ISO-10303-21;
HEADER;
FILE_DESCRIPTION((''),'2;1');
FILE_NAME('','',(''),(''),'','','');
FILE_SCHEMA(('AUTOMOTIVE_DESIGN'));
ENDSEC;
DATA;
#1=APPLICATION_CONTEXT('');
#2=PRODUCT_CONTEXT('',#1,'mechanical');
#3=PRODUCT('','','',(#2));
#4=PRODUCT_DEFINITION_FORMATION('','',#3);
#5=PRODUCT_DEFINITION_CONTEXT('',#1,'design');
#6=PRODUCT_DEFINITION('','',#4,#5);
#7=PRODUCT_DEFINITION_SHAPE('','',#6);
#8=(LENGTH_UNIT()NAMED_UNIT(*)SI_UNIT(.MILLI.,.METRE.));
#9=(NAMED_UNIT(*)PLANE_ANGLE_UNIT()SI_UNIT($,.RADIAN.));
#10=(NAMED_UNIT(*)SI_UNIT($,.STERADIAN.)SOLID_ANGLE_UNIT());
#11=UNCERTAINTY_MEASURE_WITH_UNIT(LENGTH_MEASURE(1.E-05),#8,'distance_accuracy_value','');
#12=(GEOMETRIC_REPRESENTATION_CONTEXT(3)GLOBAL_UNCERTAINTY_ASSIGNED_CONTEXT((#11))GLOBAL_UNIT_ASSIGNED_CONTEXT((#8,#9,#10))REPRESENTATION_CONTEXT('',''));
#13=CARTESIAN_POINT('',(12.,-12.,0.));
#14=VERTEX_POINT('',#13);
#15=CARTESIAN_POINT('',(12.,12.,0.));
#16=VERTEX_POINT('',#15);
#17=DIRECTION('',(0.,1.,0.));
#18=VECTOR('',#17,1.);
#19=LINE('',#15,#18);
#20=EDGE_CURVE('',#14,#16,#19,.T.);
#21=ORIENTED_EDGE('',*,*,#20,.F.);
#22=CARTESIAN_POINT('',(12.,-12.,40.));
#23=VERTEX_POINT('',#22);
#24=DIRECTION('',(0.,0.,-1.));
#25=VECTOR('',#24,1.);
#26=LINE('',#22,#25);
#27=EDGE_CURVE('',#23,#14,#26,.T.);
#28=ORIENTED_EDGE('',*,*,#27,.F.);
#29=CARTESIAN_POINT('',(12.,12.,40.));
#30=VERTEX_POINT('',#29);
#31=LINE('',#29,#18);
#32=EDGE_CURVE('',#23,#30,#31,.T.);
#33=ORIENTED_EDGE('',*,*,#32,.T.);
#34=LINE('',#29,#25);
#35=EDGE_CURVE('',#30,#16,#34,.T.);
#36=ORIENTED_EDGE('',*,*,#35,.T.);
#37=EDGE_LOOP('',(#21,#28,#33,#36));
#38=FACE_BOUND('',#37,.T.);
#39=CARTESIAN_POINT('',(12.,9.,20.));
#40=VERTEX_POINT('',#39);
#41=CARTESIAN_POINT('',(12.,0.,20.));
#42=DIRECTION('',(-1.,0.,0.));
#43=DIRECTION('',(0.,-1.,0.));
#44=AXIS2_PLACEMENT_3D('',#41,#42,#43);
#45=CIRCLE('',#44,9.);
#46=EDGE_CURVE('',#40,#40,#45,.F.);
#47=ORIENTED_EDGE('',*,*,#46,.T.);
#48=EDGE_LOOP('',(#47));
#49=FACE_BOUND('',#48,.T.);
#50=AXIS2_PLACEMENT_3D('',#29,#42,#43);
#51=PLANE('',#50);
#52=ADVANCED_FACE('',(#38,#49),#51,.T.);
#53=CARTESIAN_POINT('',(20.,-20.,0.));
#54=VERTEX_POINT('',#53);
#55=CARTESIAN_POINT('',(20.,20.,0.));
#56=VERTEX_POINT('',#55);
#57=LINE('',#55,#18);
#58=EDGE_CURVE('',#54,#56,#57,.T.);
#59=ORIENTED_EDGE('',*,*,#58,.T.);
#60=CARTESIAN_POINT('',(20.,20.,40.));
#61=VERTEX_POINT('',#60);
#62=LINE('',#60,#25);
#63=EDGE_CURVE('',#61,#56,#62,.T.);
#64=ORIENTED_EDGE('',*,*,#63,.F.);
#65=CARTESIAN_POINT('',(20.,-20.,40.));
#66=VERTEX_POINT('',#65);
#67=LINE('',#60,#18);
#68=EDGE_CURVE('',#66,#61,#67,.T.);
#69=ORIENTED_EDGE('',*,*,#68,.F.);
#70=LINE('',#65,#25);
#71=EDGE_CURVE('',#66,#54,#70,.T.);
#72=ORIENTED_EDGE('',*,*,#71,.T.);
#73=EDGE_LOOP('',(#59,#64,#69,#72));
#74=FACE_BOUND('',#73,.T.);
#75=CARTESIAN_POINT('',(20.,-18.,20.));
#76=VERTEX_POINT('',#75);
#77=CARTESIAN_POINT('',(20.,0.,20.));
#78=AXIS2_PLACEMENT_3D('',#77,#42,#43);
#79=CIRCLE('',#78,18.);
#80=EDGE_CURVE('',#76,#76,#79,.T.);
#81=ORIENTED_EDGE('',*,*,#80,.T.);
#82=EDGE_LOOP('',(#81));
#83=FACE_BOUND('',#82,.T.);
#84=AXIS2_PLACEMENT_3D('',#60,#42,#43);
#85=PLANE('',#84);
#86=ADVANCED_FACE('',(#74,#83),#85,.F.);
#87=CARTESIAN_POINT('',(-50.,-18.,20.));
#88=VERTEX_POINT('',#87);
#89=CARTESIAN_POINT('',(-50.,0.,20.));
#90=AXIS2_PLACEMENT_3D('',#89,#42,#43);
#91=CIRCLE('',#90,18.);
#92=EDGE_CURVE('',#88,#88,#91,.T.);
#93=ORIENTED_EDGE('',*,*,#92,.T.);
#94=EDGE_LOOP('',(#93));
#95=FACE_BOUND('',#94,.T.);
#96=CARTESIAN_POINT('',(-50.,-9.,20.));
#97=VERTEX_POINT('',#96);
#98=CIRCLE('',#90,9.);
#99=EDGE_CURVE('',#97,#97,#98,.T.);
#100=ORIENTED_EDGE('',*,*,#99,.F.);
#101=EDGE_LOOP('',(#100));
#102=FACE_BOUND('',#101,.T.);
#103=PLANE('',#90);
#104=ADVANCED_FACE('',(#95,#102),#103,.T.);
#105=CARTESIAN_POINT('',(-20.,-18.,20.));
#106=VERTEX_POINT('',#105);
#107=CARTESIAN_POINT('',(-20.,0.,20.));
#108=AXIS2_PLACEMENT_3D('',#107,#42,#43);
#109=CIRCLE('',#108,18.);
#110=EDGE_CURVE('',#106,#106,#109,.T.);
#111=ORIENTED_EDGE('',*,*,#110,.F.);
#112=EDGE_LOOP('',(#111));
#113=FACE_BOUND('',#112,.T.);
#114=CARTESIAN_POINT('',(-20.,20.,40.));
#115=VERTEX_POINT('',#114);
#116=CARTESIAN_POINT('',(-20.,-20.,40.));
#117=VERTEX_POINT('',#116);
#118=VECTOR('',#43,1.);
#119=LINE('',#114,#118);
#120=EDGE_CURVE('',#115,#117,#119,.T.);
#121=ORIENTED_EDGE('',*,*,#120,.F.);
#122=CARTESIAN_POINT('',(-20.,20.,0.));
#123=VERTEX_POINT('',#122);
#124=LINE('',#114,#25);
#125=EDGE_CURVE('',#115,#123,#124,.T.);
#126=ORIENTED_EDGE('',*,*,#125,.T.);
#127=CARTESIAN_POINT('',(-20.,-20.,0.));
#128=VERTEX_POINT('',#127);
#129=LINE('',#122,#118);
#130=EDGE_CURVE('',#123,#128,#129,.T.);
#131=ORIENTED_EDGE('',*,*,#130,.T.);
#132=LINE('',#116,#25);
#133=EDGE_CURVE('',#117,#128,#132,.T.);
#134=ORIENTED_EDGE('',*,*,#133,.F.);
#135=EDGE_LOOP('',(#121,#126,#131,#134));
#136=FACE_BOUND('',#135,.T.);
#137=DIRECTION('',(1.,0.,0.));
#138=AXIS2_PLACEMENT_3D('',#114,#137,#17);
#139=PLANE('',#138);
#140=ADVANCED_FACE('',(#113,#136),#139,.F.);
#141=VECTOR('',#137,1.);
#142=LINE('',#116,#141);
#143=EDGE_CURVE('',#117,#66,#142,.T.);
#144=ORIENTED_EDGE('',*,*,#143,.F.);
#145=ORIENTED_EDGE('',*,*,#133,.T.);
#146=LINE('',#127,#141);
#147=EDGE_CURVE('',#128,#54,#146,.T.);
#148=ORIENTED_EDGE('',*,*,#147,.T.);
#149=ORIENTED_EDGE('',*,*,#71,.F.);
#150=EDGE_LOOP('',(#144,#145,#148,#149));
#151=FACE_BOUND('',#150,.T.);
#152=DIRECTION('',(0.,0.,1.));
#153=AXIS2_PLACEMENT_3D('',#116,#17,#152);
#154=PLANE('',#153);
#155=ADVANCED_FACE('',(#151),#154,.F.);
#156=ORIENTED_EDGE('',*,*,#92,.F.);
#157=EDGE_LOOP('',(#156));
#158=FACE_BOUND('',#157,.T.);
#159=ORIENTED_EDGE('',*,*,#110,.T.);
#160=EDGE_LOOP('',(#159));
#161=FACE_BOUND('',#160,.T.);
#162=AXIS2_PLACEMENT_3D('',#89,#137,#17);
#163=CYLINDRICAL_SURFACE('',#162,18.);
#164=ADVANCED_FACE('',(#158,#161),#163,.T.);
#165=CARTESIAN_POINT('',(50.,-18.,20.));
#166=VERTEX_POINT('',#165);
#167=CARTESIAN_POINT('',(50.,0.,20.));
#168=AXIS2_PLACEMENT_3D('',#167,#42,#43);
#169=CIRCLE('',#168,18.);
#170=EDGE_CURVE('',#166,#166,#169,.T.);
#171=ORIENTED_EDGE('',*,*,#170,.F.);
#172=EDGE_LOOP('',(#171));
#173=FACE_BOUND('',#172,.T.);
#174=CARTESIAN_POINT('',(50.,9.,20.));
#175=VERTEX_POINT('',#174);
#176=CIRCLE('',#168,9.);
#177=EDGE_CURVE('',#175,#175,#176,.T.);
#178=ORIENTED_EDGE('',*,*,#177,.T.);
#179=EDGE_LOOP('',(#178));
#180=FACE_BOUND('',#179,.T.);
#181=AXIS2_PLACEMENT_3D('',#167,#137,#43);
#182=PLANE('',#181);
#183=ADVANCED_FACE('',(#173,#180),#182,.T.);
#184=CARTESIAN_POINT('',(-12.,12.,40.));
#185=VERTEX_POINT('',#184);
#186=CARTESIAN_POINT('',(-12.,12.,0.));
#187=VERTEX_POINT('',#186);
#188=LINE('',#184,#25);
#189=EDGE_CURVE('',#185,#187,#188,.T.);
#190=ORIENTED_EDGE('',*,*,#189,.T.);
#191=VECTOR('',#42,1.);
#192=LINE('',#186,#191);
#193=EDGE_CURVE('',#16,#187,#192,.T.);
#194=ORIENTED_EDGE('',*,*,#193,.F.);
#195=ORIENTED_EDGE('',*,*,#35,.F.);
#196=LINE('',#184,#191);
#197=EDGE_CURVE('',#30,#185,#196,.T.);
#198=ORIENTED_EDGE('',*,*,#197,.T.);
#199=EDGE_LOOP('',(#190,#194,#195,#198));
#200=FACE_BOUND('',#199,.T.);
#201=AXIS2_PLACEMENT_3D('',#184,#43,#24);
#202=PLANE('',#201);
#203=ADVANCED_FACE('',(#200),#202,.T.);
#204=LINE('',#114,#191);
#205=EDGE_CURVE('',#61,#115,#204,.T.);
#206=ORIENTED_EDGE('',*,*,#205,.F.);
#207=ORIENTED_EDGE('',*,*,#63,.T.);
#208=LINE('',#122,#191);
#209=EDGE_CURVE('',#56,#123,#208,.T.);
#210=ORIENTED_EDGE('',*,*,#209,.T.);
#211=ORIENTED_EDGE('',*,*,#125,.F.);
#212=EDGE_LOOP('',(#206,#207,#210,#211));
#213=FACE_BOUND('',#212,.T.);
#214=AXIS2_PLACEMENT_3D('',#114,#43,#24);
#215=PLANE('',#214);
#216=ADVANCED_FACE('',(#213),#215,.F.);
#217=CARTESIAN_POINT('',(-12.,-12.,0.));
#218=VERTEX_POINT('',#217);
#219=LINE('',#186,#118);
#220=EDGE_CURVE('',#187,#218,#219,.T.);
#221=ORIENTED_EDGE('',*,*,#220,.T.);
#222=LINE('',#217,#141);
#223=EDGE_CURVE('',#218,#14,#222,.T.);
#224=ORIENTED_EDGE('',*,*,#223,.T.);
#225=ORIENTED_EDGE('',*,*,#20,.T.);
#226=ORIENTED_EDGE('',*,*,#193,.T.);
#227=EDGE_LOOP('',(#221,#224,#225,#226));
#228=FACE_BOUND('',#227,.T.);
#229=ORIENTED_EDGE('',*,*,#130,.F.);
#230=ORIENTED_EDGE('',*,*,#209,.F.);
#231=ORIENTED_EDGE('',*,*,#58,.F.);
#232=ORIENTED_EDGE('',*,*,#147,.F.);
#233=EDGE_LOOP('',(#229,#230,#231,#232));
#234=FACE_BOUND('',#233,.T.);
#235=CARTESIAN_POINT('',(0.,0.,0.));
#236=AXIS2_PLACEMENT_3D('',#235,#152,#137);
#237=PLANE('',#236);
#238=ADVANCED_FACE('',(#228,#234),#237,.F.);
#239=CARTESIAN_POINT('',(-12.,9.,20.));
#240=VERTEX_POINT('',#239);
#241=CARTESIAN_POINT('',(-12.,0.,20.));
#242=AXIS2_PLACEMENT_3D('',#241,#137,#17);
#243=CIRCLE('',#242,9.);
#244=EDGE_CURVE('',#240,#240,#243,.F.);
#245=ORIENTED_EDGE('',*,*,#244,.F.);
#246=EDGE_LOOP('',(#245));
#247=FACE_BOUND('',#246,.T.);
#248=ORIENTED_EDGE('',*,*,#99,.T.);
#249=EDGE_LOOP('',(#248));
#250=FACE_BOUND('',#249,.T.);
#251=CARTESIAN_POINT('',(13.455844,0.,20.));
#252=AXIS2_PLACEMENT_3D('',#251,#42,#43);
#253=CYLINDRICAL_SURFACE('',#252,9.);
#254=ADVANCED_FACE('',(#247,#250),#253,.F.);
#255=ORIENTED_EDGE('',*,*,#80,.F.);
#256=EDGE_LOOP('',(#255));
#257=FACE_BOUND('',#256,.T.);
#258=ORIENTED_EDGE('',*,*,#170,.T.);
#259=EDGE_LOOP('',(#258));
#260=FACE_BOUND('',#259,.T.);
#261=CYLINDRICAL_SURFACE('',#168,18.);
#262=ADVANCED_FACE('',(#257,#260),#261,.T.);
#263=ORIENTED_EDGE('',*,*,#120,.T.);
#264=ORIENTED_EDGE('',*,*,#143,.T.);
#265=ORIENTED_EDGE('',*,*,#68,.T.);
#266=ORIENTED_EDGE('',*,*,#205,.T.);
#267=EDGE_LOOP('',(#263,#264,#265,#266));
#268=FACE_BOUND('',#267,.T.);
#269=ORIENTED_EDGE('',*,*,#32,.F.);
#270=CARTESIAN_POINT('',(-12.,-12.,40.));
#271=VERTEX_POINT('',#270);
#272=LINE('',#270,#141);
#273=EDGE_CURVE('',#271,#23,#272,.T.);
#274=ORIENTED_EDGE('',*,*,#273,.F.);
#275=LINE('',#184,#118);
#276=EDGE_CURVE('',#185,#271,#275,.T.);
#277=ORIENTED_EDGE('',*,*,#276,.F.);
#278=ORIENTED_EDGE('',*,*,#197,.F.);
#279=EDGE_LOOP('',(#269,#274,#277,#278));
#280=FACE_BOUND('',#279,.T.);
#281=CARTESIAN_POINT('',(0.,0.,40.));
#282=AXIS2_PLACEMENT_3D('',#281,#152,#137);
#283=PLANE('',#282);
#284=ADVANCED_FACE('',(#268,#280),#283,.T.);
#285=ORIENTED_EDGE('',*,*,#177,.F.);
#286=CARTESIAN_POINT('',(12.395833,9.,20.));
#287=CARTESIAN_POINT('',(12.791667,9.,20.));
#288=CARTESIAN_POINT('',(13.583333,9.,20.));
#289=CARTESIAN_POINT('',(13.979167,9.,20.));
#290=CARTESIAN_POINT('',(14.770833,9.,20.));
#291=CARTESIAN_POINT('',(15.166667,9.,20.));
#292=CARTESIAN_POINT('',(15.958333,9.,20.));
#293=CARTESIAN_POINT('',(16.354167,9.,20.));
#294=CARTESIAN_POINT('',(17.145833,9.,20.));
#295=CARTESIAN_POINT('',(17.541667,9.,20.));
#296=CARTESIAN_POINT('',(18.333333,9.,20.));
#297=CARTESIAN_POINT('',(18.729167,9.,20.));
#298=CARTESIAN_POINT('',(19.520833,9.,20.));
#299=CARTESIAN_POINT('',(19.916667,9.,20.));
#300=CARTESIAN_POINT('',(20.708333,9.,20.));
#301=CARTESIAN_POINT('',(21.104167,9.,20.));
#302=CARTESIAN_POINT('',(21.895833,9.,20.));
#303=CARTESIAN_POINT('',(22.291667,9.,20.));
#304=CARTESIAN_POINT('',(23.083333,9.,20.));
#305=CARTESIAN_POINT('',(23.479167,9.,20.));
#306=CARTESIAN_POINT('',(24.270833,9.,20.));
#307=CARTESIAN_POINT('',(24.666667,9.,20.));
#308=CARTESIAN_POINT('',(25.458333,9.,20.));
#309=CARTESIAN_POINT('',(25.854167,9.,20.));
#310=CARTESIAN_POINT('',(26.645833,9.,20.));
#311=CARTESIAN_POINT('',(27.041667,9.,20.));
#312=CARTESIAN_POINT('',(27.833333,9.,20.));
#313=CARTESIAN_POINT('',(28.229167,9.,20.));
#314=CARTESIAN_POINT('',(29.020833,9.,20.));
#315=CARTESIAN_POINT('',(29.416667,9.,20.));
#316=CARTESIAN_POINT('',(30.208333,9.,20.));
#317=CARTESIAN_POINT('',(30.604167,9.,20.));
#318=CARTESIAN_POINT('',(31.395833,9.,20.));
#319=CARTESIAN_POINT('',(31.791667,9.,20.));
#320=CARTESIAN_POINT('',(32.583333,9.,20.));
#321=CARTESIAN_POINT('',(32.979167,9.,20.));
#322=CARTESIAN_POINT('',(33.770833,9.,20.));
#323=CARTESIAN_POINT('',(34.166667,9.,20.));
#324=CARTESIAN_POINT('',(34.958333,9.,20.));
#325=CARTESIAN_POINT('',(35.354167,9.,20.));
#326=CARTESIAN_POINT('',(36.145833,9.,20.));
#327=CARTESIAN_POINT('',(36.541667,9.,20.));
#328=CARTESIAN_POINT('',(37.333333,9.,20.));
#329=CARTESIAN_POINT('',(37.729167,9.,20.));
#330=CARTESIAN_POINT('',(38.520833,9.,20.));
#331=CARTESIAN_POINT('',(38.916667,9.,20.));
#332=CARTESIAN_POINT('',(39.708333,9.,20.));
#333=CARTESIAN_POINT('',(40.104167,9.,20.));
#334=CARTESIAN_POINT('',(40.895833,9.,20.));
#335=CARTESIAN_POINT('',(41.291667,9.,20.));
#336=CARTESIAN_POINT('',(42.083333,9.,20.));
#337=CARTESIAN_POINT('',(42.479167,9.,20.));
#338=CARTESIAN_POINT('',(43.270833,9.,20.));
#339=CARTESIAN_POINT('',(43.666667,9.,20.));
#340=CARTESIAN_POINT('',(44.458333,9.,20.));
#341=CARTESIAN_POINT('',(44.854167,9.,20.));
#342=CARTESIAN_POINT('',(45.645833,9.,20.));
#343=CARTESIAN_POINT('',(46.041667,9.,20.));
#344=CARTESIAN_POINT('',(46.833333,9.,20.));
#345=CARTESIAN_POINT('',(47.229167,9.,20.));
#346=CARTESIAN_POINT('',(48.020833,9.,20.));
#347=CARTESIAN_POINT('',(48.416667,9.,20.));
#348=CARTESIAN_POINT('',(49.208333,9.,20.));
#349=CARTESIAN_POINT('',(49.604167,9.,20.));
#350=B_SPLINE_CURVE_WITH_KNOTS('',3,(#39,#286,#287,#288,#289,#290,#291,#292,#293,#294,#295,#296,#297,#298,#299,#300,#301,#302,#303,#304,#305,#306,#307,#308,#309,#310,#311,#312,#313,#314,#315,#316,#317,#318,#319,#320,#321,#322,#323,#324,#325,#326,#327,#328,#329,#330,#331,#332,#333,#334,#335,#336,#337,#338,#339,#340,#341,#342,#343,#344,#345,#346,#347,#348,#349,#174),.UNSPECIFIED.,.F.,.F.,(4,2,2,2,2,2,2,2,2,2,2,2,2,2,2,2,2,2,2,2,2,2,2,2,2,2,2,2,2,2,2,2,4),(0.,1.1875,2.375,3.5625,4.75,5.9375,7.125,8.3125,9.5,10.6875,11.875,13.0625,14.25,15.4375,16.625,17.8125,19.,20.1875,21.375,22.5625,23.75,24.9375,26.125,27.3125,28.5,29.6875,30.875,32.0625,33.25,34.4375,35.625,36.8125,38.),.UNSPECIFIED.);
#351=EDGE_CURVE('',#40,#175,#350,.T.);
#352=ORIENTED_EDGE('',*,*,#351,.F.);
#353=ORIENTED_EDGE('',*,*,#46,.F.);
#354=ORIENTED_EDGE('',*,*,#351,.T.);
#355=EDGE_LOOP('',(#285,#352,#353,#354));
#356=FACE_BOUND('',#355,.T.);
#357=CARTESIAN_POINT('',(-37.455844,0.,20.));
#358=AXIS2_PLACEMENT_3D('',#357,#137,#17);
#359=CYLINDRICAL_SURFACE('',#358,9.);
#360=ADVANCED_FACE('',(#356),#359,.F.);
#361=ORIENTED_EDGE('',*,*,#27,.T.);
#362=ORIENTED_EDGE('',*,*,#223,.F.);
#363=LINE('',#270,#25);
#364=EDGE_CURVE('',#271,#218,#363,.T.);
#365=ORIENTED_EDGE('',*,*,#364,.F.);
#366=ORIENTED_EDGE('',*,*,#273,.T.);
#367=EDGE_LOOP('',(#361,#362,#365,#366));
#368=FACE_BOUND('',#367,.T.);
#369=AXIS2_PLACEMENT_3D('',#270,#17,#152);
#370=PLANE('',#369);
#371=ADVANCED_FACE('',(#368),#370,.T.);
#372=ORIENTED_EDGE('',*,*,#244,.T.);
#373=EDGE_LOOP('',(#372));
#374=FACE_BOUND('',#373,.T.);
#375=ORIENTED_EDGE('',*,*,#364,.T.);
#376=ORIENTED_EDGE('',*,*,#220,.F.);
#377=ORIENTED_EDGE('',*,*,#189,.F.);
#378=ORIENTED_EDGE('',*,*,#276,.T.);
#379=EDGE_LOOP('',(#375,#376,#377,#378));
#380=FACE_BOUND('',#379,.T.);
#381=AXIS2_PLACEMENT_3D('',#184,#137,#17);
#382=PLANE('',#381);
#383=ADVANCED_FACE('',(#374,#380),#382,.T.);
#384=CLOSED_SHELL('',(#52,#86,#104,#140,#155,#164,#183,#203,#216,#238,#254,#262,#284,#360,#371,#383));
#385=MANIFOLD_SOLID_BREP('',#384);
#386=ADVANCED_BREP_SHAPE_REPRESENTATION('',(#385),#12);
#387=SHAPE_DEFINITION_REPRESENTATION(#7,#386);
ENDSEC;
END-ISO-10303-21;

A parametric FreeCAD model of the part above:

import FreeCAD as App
import Part
import Sketcher
from FreeCAD import Vector

doc = App.newDocument("Part")
body = doc.addObject("PartDesign::Body", "Body")

# Sketch on XY plane
sketch1 = doc.addObject("Sketcher::SketchObject", "Sketch")
body.addObject(sketch1)
sketch1.AttachmentSupport = (doc.XY_Plane, [""])
sketch1.MapMode = "FlatFace"
sketch1.addGeometry(Part.LineSegment(Vector(-20, 20, 0), Vector(-20, -20, 0)), False)
sketch1.addGeometry(Part.LineSegment(Vector(-20, -20, 0), Vector(20, -20, 0)), False)
sketch1.addGeometry(Part.LineSegment(Vector(20, -20, 0), Vector(20, 20, 0)), False)
sketch1.addGeometry(Part.LineSegment(Vector(20, 20, 0), Vector(-20, 20, 0)), False)
sketch1.addGeometry(Part.LineSegment(Vector(12, -12, 0), Vector(-12, -12, 0)), False)
sketch1.addGeometry(Part.LineSegment(Vector(-12, -12, 0), Vector(-12, 12, 0)), False)
sketch1.addGeometry(Part.LineSegment(Vector(-12, 12, 0), Vector(12, 12, 0)), False)
sketch1.addGeometry(Part.LineSegment(Vector(12, 12, 0), Vector(12, -12, 0)), False)
sketch1.addConstraint(Sketcher.Constraint("Coincident", 0, 2, 1, 1))
sketch1.addConstraint(Sketcher.Constraint("Coincident", 1, 2, 2, 1))
sketch1.addConstraint(Sketcher.Constraint("Coincident", 2, 2, 3, 1))
sketch1.addConstraint(Sketcher.Constraint("Coincident", 3, 2, 0, 1))
sketch1.addConstraint(Sketcher.Constraint("Coincident", 4, 2, 5, 1))
sketch1.addConstraint(Sketcher.Constraint("Coincident", 5, 2, 6, 1))
sketch1.addConstraint(Sketcher.Constraint("Coincident", 6, 2, 7, 1))
sketch1.addConstraint(Sketcher.Constraint("Coincident", 7, 2, 4, 1))
sketch1.addConstraint(Sketcher.Constraint("Vertical", 0))
sketch1.addConstraint(Sketcher.Constraint("Horizontal", 1))
sketch1.addConstraint(Sketcher.Constraint("Vertical", 2))
sketch1.addConstraint(Sketcher.Constraint("Horizontal", 3))
sketch1.addConstraint(Sketcher.Constraint("Horizontal", 4))
sketch1.addConstraint(Sketcher.Constraint("Vertical", 5))
sketch1.addConstraint(Sketcher.Constraint("Horizontal", 6))
sketch1.addConstraint(Sketcher.Constraint("Vertical", 7))
sketch1.addConstraint(Sketcher.Constraint("Symmetric", 0, 2, 2, 2, -1, 1))
sketch1.addConstraint(Sketcher.Constraint("Symmetric", 4, 2, 6, 2, -1, 1))
sketch1.addConstraint(Sketcher.Constraint("Equal", 3, 0))
sketch1.addConstraint(Sketcher.Constraint("Equal", 6, 5))
sketch1.addConstraint(Sketcher.Constraint("DistanceX", 1, 1, 1, 2, 40.0))
sketch1.addConstraint(Sketcher.Constraint("DistanceX", 4, 2, 4, 1, 24.0))
pad1 = doc.addObject("PartDesign::Pad", "Pad")
body.addObject(pad1)
pad1.Profile = sketch1
pad1.Length = 40

# Sketch on YZ plane
sketch2 = doc.addObject("Sketcher::SketchObject", "Sketch001")
body.addObject(sketch2)
sketch2.AttachmentSupport = (doc.YZ_Plane, [""])
sketch2.MapMode = "FlatFace"
sketch2.AttachmentOffset = App.Placement(Vector(0, 0, -20), App.Rotation())
sketch2.addGeometry(Part.Circle(Vector(0, 20, 0), Vector(0, 0, 1), 18), False)
sketch2.addConstraint(Sketcher.Constraint("PointOnObject", 0, 3, -2))
sketch2.addConstraint(Sketcher.Constraint("Diameter", 0, 36.0))
sketch2.addConstraint(Sketcher.Constraint("DistanceY", -1, 1, 0, 3, 20.0))
pad2 = doc.addObject("PartDesign::Pad", "Pad001")
body.addObject(pad2)
pad2.Profile = sketch2
pad2.Length = 30
pad2.Reversed = True

# Sketch on YZ plane
sketch3 = doc.addObject("Sketcher::SketchObject", "Sketch002")
body.addObject(sketch3)
sketch3.AttachmentSupport = (doc.YZ_Plane, [""])
sketch3.MapMode = "FlatFace"
sketch3.AttachmentOffset = App.Placement(Vector(0, 0, -50), App.Rotation())
sketch3.addGeometry(Part.Circle(Vector(0, 20, 0), Vector(0, 0, 1), 9), False)
sketch3.addConstraint(Sketcher.Constraint("PointOnObject", 0, 3, -2))
sketch3.addConstraint(Sketcher.Constraint("Diameter", 0, 18.0))
sketch3.addConstraint(Sketcher.Constraint("DistanceY", -1, 1, 0, 3, 20.0))
pocket1 = doc.addObject("PartDesign::Pocket", "Pocket")
body.addObject(pocket1)
pocket1.Profile = sketch3
pocket1.Length = 62
pocket1.Reversed = True
doc.recompute()

mirrored = doc.addObject("PartDesign::Mirrored", "Mirrored")
body.addObject(mirrored)
mirrored.Originals = [pad2, pocket1]
mirrored.MirrorPlane = (doc.YZ_Plane, [""])
body.Tip = mirrored

doc.recompute()
